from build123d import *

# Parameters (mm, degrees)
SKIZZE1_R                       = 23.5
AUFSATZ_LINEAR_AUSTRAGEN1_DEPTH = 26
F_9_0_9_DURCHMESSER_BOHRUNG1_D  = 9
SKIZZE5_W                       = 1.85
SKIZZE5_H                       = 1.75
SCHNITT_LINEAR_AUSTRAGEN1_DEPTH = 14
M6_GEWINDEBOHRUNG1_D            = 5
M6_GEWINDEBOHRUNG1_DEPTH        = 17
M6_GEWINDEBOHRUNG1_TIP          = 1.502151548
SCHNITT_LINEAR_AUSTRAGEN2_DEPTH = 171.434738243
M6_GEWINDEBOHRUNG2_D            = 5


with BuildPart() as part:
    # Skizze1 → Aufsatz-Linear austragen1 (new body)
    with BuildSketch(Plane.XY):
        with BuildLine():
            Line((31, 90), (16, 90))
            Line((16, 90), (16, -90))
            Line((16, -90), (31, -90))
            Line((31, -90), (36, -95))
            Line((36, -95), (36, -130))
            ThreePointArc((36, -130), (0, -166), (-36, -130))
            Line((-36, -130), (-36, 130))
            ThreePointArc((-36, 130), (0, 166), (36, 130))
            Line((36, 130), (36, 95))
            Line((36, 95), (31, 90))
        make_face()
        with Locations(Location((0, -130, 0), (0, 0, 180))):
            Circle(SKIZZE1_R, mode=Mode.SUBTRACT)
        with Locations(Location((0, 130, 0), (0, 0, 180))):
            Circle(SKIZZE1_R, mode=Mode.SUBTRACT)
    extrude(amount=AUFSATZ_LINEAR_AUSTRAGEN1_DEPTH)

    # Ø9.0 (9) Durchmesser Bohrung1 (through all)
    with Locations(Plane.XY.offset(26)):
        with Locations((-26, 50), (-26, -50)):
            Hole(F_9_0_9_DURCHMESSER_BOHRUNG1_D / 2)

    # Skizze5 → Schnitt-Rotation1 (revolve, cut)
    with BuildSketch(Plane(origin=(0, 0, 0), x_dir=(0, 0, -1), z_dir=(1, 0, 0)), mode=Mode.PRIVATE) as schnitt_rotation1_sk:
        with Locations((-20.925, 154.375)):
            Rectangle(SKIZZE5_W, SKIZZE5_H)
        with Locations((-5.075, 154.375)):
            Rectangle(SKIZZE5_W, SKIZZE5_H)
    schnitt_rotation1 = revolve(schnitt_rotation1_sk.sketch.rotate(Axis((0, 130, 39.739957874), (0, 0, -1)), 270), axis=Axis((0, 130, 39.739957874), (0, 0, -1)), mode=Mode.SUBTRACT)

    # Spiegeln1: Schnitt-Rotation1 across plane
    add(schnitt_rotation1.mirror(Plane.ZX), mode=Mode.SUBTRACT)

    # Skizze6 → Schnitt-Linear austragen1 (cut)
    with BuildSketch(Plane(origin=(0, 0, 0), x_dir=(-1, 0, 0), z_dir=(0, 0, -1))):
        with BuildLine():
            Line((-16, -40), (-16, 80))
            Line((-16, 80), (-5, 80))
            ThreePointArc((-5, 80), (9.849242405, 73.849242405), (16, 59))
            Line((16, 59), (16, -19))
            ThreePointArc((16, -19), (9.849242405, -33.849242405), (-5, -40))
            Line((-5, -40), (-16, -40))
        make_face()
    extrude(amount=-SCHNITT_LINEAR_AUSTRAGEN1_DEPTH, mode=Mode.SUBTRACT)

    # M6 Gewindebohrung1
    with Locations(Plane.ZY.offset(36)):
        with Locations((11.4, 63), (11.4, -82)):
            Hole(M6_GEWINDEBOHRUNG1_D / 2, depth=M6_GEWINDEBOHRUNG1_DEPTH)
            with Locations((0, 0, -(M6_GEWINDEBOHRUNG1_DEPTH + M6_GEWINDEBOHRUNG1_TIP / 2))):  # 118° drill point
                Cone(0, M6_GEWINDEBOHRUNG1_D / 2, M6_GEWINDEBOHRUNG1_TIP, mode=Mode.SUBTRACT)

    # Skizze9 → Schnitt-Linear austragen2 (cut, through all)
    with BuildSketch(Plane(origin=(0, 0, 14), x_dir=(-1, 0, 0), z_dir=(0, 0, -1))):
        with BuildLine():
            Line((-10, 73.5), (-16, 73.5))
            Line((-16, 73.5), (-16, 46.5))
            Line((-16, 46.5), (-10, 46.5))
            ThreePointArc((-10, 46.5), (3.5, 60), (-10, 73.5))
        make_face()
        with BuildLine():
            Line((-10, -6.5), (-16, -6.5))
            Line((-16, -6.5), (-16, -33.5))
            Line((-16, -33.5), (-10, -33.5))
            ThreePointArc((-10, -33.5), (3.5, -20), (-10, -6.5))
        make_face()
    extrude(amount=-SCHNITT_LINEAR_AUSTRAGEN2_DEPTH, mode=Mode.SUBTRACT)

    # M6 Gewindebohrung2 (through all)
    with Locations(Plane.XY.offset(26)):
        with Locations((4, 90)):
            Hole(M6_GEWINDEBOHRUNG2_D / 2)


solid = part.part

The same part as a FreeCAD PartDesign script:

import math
import FreeCAD as App
import Part
import Sketcher
from FreeCAD import Vector
Q = App.Units.Quantity

doc = App.newDocument("Part")
params = doc.addObject("Spreadsheet::Sheet", "Params")
for row, (alias, value) in enumerate([
    ("sketch1_diameter", "47 mm"),
    ("sketch1_radius", "36 mm"),
    ("sketch1_width", "15 mm"),
    ("sketch1_height", "35 mm"),
    ("sketch1_height2", "260 mm"),
    ("pad1_length", "26 mm"),
    ("sketch2_diameter", "9 mm"),
    ("hole_diameter", "9 mm"),
    ("sketch3_height", "17.7 mm"),
    ("sketch3_width", "1.75 mm"),
    ("groove_angle", "360 deg"),
    ("sketch4_radius", "21 mm"),
    ("sketch4_width", "11 mm"),
    ("sketch4_height", "120 mm"),
    ("pocket1_length", "14 mm"),
    ("sketch5_diameter", "5 mm"),
    ("hole2_diameter", "5 mm"),
    ("hole2_depth", "17 mm"),
    ("sketch6_radius", "13.5 mm"),
    ("sketch6_width", "6 mm"),
    ("sketch7_diameter", "5 mm"),
    ("hole3_diameter", "5 mm"),
], start=1):
    params.set(f"A{row}", alias)
    params.set(f"B{row}", "=" + value)
    params.setAlias(f"B{row}", alias)

body = doc.addObject("PartDesign::Body", "Body")

# Sketch on XY plane
sketch1 = body.newObject("Sketcher::SketchObject", "Sketch")
sketch1.AttachmentSupport = (doc.getObject("XY_Plane"), [""])
sketch1.MapMode = "FlatFace"
sketch1.addGeometry([
    Part.LineSegment(Vector(16, 90, 0), Vector(31, 90, 0)),  # 0
    Part.LineSegment(Vector(31, 90, 0), Vector(36, 95, 0)),  # 1
    Part.LineSegment(Vector(36, 95, 0), Vector(36, 130, 0)),  # 2
    Part.ArcOfCircle(Part.Circle(Vector(0, 130, 0), Vector(0, 0, 1), 36), math.radians(0), math.radians(180)),  # 3
    Part.LineSegment(Vector(-36, 130, 0), Vector(-36, -130, 0)),  # 4
    Part.ArcOfCircle(Part.Circle(Vector(0, -130, 0), Vector(0, 0, 1), 36), math.radians(180), math.radians(360)),  # 5
    Part.LineSegment(Vector(36, -130, 0), Vector(36, -95, 0)),  # 6
    Part.LineSegment(Vector(36, -95, 0), Vector(31, -90, 0)),  # 7
    Part.LineSegment(Vector(31, -90, 0), Vector(16, -90, 0)),  # 8
    Part.LineSegment(Vector(16, -90, 0), Vector(16, 90, 0)),  # 9
    Part.Circle(Vector(0, -130, 0), Vector(0, 0, 1), 23.5),  # 10
    Part.Circle(Vector(0, 130, 0), Vector(0, 0, 1), 23.5),  # 11
], False)
sketch1.addConstraint([
    Sketcher.Constraint("Coincident", 0, 2, 1, 1),
    Sketcher.Constraint("Coincident", 1, 2, 2, 1),
    Sketcher.Constraint("Tangent", 2, 2, 3, 1),
    Sketcher.Constraint("Tangent", 3, 2, 4, 1),
    Sketcher.Constraint("Tangent", 4, 2, 5, 1),
    Sketcher.Constraint("Tangent", 5, 2, 6, 1),
    Sketcher.Constraint("Coincident", 6, 2, 7, 1),
    Sketcher.Constraint("Coincident", 7, 2, 8, 1),
    Sketcher.Constraint("Coincident", 8, 2, 9, 1),
    Sketcher.Constraint("Coincident", 9, 2, 0, 1),
    Sketcher.Constraint("Horizontal", 0),
    Sketcher.Constraint("Vertical", 2),
    Sketcher.Constraint("Vertical", 4),
    Sketcher.Constraint("Vertical", 6),
    Sketcher.Constraint("Horizontal", 8),
    Sketcher.Constraint("Vertical", 9),
    Sketcher.Constraint("Coincident", 10, 3, 5, 3),
    Sketcher.Constraint("Coincident", 11, 3, 3, 3),
    Sketcher.Constraint("Equal", 3, 5),
    Sketcher.Constraint("Equal", 10, 11),
    Sketcher.Constraint("Symmetric", 3, 3, 5, 3, -1, 1),
    Sketcher.Constraint("Symmetric", 0, 2, 7, 2, -1),
    Sketcher.Constraint("Perpendicular", 1, 7),
    Sketcher.Constraint("Equal", 2, 6),
    Sketcher.Constraint("Diameter", 10, Q("47 mm")),
    Sketcher.Constraint("Radius", 3, Q("36 mm")),
    Sketcher.Constraint("DistanceX", 0, 1, 0, 2, Q("15 mm")),
    Sketcher.Constraint("DistanceY", 2, 1, 2, 2, Q("35 mm")),
    Sketcher.Constraint("DistanceY", 4, 2, 4, 1, Q("260 mm")),
    Sketcher.Constraint("DistanceY", 9, 1, 9, 2, Q("180 mm")),
])
sketch1.setExpression("Constraints[24]", "Params.sketch1_diameter")
sketch1.setExpression("Constraints[25]", "Params.sketch1_radius")
sketch1.setExpression("Constraints[26]", "Params.sketch1_width")
sketch1.setExpression("Constraints[27]", "Params.sketch1_height")
sketch1.setExpression("Constraints[28]", "Params.sketch1_height2")
pad1 = body.newObject("PartDesign::Pad", "Pad")
pad1.Profile = sketch1
pad1.setExpression("Length", "Params.pad1_length")

# Sketch on XY plane
sketch2 = body.newObject("Sketcher::SketchObject", "Sketch001")
sketch2.AttachmentSupport = (doc.getObject("XY_Plane"), [""])
sketch2.MapMode = "FlatFace"
sketch2.AttachmentOffset = App.Placement(Vector(0, 0, 26), App.Rotation())
sketch2.addGeometry([
    Part.Circle(Vector(-26, 50, 0), Vector(0, 0, 1), 4.5),
    Part.Circle(Vector(-26, -50, 0), Vector(0, 0, 1), 4.5),
], False)
sketch2.addConstraint([
    Sketcher.Constraint("Equal", 0, 1),
    Sketcher.Constraint("Symmetric", 0, 3, 1, 3, -1),
    Sketcher.Constraint("Diameter", 0, Q("9 mm")),
    Sketcher.Constraint("DistanceX", 0, 3, -1, 1, Q("26 mm")),
    Sketcher.Constraint("DistanceY", -1, 1, 0, 3, Q("50 mm")),
])
sketch2.setExpression("Constraints[2]", "Params.sketch2_diameter")
doc.recompute()
hole = body.newObject("PartDesign::Hole", "Hole")
hole.Profile = sketch2
hole.ThreadType = "None"
hole.setExpression("Diameter", "Params.hole_diameter")
hole.DepthType = "ThroughAll"

# Sketch on YZ plane
sketch3 = body.newObject("Sketcher::SketchObject", "Sketch002")
sketch3.AttachmentSupport = (doc.getObject("YZ_Plane"), [""])
sketch3.MapMode = "FlatFace"
sketch3.addGeometry([
    Part.LineSegment(Vector(155.25, 21.85, 0), Vector(153.5, 21.85, 0)),  # 0
    Part.LineSegment(Vector(153.5, 21.85, 0), Vector(153.5, 20, 0)),  # 1
    Part.LineSegment(Vector(153.5, 20, 0), Vector(155.25, 20, 0)),  # 2
    Part.LineSegment(Vector(155.25, 20, 0), Vector(155.25, 21.85, 0)),  # 3
    Part.LineSegment(Vector(155.25, 6, 0), Vector(153.5, 6, 0)),  # 4
    Part.LineSegment(Vector(153.5, 6, 0), Vector(153.5, 4.15, 0)),  # 5
    Part.LineSegment(Vector(153.5, 4.15, 0), Vector(155.25, 4.15, 0)),  # 6
    Part.LineSegment(Vector(155.25, 4.15, 0), Vector(155.25, 6, 0)),  # 7
], False)
sketch3.addGeometry(Part.LineSegment(Vector(130, 21.85, 0), Vector(130, 4.15, 0)), True)  # axis
sketch3.addConstraint([
    Sketcher.Constraint("Coincident", 0, 2, 1, 1),
    Sketcher.Constraint("Coincident", 1, 2, 2, 1),
    Sketcher.Constraint("Coincident", 2, 2, 3, 1),
    Sketcher.Constraint("Coincident", 3, 2, 0, 1),
    Sketcher.Constraint("Coincident", 4, 2, 5, 1),
    Sketcher.Constraint("Coincident", 5, 2, 6, 1),
    Sketcher.Constraint("Coincident", 6, 2, 7, 1),
    Sketcher.Constraint("Coincident", 7, 2, 4, 1),
    Sketcher.Constraint("Horizontal", 0),
    Sketcher.Constraint("Vertical", 1),
    Sketcher.Constraint("Horizontal", 2),
    Sketcher.Constraint("Vertical", 3),
    Sketcher.Constraint("Horizontal", 4),
    Sketcher.Constraint("Vertical", 5),
    Sketcher.Constraint("Horizontal", 6),
    Sketcher.Constraint("Vertical", 7),
    Sketcher.Constraint("Vertical", 8),
    Sketcher.Constraint("Horizontal", 3, 2, 8, 1),
    Sketcher.Constraint("Horizontal", 6, 2, 8, 2),
    Sketcher.Constraint("Vertical", 1, 2, 4, 2),
    Sketcher.Constraint("Vertical", 3, 2, 6, 2),
    Sketcher.Constraint("Equal", 3, 5),
    Sketcher.Constraint("DistanceY", 8, 2, 8, 1, Q("17.7 mm")),
    Sketcher.Constraint("DistanceY", -1, 1, 1, 2, Q("20 mm")),
    Sketcher.Constraint("DistanceY", -1, 1, 4, 2, Q("6 mm")),
    Sketcher.Constraint("DistanceX", -1, 1, 8, 1, Q("130 mm")),
    Sketcher.Constraint("DistanceX", 0, 2, 0, 1, Q("1.75 mm")),
    Sketcher.Constraint("DistanceX", -1, 1, 0, 2, Q("153.5 mm")),
])
sketch3.setExpression("Constraints[22]", "Params.sketch3_height")
sketch3.setExpression("Constraints[26]", "Params.sketch3_width")
groove = body.newObject("PartDesign::Groove", "Groove")
groove.Profile = sketch3
groove.ReferenceAxis = (sketch3, ["Axis0"])
groove.setExpression("Angle", "Params.groove_angle")
doc.recompute()

mirrored = body.newObject("PartDesign::Mirrored", "Mirrored")
mirrored.Originals = [groove]
mirrored.MirrorPlane = (doc.getObject("XZ_Plane"), [""])
body.Tip = mirrored

# Sketch on XY plane
sketch4 = body.newObject("Sketcher::SketchObject", "Sketch003")
sketch4.AttachmentSupport = (doc.getObject("XY_Plane"), [""])
sketch4.MapMode = "FlatFace"
sketch4.addGeometry([
    Part.LineSegment(Vector(16, 80, 0), Vector(16, -40, 0)),  # 0
    Part.LineSegment(Vector(16, -40, 0), Vector(5, -40, 0)),  # 1
    Part.ArcOfCircle(Part.Circle(Vector(5, -19, 0), Vector(0, 0, 1), 21), math.radians(180), math.radians(270)),  # 2
    Part.LineSegment(Vector(-16, -19, 0), Vector(-16, 59, 0)),  # 3
    Part.ArcOfCircle(Part.Circle(Vector(5, 59, 0), Vector(0, 0, 1), 21), math.radians(90), math.radians(180)),  # 4
    Part.LineSegment(Vector(5, 80, 0), Vector(16, 80, 0)),  # 5
], False)
sketch4.addConstraint([
    Sketcher.Constraint("Coincident", 0, 2, 1, 1),
    Sketcher.Constraint("Tangent", 1, 2, 2, 2),
    Sketcher.Constraint("Tangent", 2, 1, 3, 1),
    Sketcher.Constraint("Tangent", 3, 2, 4, 2),
    Sketcher.Constraint("Tangent", 4, 1, 5, 1),
    Sketcher.Constraint("Coincident", 5, 2, 0, 1),
    Sketcher.Constraint("Vertical", 0),
    Sketcher.Constraint("Horizontal", 1),
    Sketcher.Constraint("Vertical", 3),
    Sketcher.Constraint("Horizontal", 5),
    Sketcher.Constraint("Equal", 2, 4),
    Sketcher.Constraint("Radius", 2, Q("21 mm")),
    Sketcher.Constraint("DistanceX", 1, 2, 1, 1, Q("11 mm")),
    Sketcher.Constraint("DistanceY", 0, 2, 0, 1, Q("120 mm")),
    Sketcher.Constraint("DistanceX", -1, 1, 2, 3, Q("5 mm")),
    Sketcher.Constraint("DistanceY", 2, 3, -1, 1, Q("19 mm")),
])
sketch4.setExpression("Constraints[11]", "Params.sketch4_radius")
sketch4.setExpression("Constraints[12]", "Params.sketch4_width")
sketch4.setExpression("Constraints[13]", "Params.sketch4_height")
pocket1 = body.newObject("PartDesign::Pocket", "Pocket")
pocket1.Profile = sketch4
pocket1.setExpression("Length", "Params.pocket1_length")
pocket1.Reversed = True

# Sketch on YZ plane
sketch5 = body.newObject("Sketcher::SketchObject", "Sketch004")
sketch5.AttachmentSupport = (doc.getObject("YZ_Plane"), [""])
sketch5.MapMode = "FlatFace"
sketch5.AttachmentOffset = App.Placement(Vector(0, 0, -36), App.Rotation())
sketch5.addGeometry([
    Part.Circle(Vector(63, 11.4, 0), Vector(0, 0, 1), 2.5),
    Part.Circle(Vector(-82, 11.4, 0), Vector(0, 0, 1), 2.5),
], False)
sketch5.addConstraint([
    Sketcher.Constraint("Equal", 0, 1),
    Sketcher.Constraint("Horizontal", 0, 3, 1, 3),
    Sketcher.Constraint("Diameter", 0, Q("5 mm")),
    Sketcher.Constraint("DistanceX", -1, 1, 0, 3, Q("63 mm")),
    Sketcher.Constraint("DistanceX", 1, 3, -1, 1, Q("82 mm")),
    Sketcher.Constraint("DistanceY", -1, 1, 0, 3, Q("11.4 mm")),
])
sketch5.setExpression("Constraints[2]", "Params.sketch5_diameter")
doc.recompute()
hole2 = body.newObject("PartDesign::Hole", "Hole001")
hole2.Profile = sketch5
hole2.ThreadType = "None"
hole2.setExpression("Diameter", "Params.hole2_diameter")
hole2.DepthType = "Dimension"
hole2.setExpression("Depth", "Params.hole2_depth")
hole2.DrillPoint = "Angled"
hole2.DrillPointAngle = 118
hole2.Reversed = True

# Sketch on XY plane
sketch6 = body.newObject("Sketcher::SketchObject", "Sketch005")
sketch6.AttachmentSupport = (doc.getObject("XY_Plane"), [""])
sketch6.MapMode = "FlatFace"
sketch6.AttachmentOffset = App.Placement(Vector(0, 0, 14), App.Rotation())
sketch6.addGeometry([
    Part.LineSegment(Vector(10, 73.5, 0), Vector(16, 73.5, 0)),  # 0
    Part.LineSegment(Vector(16, 73.5, 0), Vector(16, 46.5, 0)),  # 1
    Part.LineSegment(Vector(16, 46.5, 0), Vector(10, 46.5, 0)),  # 2
    Part.ArcOfCircle(Part.Circle(Vector(10, 60, 0), Vector(0, 0, 1), 13.5), math.radians(90), math.radians(270)),  # 3
    Part.LineSegment(Vector(10, -6.5, 0), Vector(16, -6.5, 0)),  # 4
    Part.LineSegment(Vector(16, -6.5, 0), Vector(16, -33.5, 0)),  # 5
    Part.LineSegment(Vector(16, -33.5, 0), Vector(10, -33.5, 0)),  # 6
    Part.ArcOfCircle(Part.Circle(Vector(10, -20, 0), Vector(0, 0, 1), 13.5), math.radians(90), math.radians(270)),  # 7
], False)
sketch6.addConstraint([
    Sketcher.Constraint("Coincident", 0, 2, 1, 1),
    Sketcher.Constraint("Coincident", 1, 2, 2, 1),
    Sketcher.Constraint("Tangent", 2, 2, 3, 2),
    Sketcher.Constraint("Tangent", 3, 1, 0, 1),
    Sketcher.Constraint("Coincident", 4, 2, 5, 1),
    Sketcher.Constraint("Coincident", 5, 2, 6, 1),
    Sketcher.Constraint("Tangent", 6, 2, 7, 2),
    Sketcher.Constraint("Tangent", 7, 1, 4, 1),
    Sketcher.Constraint("Horizontal", 0),
    Sketcher.Constraint("Vertical", 1),
    Sketcher.Constraint("Horizontal", 2),
    Sketcher.Constraint("Horizontal", 4),
    Sketcher.Constraint("Vertical", 5),
    Sketcher.Constraint("Horizontal", 6),
    Sketcher.Constraint("Equal", 3, 7),
    Sketcher.Constraint("Vertical", 3, 3, 7, 3),
    Sketcher.Constraint("Vertical", 1, 2, 4, 2),
    Sketcher.Constraint("Radius", 3, Q("13.5 mm")),
    Sketcher.Constraint("DistanceX", 0, 1, 0, 2, Q("6 mm")),
    Sketcher.Constraint("DistanceX", -1, 1, 3, 3, Q("10 mm")),
    Sketcher.Constraint("DistanceY", -1, 1, 3, 3, Q("60 mm")),
    Sketcher.Constraint("DistanceY", 7, 3, -1, 1, Q("20 mm")),
])
sketch6.setExpression("Constraints[17]", "Params.sketch6_radius")
sketch6.setExpression("Constraints[18]", "Params.sketch6_width")
pocket2 = body.newObject("PartDesign::Pocket", "Pocket001")
pocket2.Profile = sketch6
pocket2.Type = "ThroughAll"
pocket2.Reversed = True

# Sketch on XY plane
sketch7 = body.newObject("Sketcher::SketchObject", "Sketch006")
sketch7.AttachmentSupport = (doc.getObject("XY_Plane"), [""])
sketch7.MapMode = "FlatFace"
sketch7.AttachmentOffset = App.Placement(Vector(0, 0, 26), App.Rotation())
sketch7.addGeometry(Part.Circle(Vector(4, 90, 0), Vector(0, 0, 1), 2.5), False)
sketch7.addConstraint([
    Sketcher.Constraint("Diameter", 0, Q("5 mm")),
    Sketcher.Constraint("DistanceX", -1, 1, 0, 3, Q("4 mm")),
    Sketcher.Constraint("DistanceY", -1, 1, 0, 3, Q("90 mm")),
])
sketch7.setExpression("Constraints[0]", "Params.sketch7_diameter")
doc.recompute()
hole3 = body.newObject("PartDesign::Hole", "Hole002")
hole3.Profile = sketch7
hole3.ThreadType = "None"
hole3.setExpression("Diameter", "Params.hole3_diameter")
hole3.DepthType = "ThroughAll"

doc.recompute()
